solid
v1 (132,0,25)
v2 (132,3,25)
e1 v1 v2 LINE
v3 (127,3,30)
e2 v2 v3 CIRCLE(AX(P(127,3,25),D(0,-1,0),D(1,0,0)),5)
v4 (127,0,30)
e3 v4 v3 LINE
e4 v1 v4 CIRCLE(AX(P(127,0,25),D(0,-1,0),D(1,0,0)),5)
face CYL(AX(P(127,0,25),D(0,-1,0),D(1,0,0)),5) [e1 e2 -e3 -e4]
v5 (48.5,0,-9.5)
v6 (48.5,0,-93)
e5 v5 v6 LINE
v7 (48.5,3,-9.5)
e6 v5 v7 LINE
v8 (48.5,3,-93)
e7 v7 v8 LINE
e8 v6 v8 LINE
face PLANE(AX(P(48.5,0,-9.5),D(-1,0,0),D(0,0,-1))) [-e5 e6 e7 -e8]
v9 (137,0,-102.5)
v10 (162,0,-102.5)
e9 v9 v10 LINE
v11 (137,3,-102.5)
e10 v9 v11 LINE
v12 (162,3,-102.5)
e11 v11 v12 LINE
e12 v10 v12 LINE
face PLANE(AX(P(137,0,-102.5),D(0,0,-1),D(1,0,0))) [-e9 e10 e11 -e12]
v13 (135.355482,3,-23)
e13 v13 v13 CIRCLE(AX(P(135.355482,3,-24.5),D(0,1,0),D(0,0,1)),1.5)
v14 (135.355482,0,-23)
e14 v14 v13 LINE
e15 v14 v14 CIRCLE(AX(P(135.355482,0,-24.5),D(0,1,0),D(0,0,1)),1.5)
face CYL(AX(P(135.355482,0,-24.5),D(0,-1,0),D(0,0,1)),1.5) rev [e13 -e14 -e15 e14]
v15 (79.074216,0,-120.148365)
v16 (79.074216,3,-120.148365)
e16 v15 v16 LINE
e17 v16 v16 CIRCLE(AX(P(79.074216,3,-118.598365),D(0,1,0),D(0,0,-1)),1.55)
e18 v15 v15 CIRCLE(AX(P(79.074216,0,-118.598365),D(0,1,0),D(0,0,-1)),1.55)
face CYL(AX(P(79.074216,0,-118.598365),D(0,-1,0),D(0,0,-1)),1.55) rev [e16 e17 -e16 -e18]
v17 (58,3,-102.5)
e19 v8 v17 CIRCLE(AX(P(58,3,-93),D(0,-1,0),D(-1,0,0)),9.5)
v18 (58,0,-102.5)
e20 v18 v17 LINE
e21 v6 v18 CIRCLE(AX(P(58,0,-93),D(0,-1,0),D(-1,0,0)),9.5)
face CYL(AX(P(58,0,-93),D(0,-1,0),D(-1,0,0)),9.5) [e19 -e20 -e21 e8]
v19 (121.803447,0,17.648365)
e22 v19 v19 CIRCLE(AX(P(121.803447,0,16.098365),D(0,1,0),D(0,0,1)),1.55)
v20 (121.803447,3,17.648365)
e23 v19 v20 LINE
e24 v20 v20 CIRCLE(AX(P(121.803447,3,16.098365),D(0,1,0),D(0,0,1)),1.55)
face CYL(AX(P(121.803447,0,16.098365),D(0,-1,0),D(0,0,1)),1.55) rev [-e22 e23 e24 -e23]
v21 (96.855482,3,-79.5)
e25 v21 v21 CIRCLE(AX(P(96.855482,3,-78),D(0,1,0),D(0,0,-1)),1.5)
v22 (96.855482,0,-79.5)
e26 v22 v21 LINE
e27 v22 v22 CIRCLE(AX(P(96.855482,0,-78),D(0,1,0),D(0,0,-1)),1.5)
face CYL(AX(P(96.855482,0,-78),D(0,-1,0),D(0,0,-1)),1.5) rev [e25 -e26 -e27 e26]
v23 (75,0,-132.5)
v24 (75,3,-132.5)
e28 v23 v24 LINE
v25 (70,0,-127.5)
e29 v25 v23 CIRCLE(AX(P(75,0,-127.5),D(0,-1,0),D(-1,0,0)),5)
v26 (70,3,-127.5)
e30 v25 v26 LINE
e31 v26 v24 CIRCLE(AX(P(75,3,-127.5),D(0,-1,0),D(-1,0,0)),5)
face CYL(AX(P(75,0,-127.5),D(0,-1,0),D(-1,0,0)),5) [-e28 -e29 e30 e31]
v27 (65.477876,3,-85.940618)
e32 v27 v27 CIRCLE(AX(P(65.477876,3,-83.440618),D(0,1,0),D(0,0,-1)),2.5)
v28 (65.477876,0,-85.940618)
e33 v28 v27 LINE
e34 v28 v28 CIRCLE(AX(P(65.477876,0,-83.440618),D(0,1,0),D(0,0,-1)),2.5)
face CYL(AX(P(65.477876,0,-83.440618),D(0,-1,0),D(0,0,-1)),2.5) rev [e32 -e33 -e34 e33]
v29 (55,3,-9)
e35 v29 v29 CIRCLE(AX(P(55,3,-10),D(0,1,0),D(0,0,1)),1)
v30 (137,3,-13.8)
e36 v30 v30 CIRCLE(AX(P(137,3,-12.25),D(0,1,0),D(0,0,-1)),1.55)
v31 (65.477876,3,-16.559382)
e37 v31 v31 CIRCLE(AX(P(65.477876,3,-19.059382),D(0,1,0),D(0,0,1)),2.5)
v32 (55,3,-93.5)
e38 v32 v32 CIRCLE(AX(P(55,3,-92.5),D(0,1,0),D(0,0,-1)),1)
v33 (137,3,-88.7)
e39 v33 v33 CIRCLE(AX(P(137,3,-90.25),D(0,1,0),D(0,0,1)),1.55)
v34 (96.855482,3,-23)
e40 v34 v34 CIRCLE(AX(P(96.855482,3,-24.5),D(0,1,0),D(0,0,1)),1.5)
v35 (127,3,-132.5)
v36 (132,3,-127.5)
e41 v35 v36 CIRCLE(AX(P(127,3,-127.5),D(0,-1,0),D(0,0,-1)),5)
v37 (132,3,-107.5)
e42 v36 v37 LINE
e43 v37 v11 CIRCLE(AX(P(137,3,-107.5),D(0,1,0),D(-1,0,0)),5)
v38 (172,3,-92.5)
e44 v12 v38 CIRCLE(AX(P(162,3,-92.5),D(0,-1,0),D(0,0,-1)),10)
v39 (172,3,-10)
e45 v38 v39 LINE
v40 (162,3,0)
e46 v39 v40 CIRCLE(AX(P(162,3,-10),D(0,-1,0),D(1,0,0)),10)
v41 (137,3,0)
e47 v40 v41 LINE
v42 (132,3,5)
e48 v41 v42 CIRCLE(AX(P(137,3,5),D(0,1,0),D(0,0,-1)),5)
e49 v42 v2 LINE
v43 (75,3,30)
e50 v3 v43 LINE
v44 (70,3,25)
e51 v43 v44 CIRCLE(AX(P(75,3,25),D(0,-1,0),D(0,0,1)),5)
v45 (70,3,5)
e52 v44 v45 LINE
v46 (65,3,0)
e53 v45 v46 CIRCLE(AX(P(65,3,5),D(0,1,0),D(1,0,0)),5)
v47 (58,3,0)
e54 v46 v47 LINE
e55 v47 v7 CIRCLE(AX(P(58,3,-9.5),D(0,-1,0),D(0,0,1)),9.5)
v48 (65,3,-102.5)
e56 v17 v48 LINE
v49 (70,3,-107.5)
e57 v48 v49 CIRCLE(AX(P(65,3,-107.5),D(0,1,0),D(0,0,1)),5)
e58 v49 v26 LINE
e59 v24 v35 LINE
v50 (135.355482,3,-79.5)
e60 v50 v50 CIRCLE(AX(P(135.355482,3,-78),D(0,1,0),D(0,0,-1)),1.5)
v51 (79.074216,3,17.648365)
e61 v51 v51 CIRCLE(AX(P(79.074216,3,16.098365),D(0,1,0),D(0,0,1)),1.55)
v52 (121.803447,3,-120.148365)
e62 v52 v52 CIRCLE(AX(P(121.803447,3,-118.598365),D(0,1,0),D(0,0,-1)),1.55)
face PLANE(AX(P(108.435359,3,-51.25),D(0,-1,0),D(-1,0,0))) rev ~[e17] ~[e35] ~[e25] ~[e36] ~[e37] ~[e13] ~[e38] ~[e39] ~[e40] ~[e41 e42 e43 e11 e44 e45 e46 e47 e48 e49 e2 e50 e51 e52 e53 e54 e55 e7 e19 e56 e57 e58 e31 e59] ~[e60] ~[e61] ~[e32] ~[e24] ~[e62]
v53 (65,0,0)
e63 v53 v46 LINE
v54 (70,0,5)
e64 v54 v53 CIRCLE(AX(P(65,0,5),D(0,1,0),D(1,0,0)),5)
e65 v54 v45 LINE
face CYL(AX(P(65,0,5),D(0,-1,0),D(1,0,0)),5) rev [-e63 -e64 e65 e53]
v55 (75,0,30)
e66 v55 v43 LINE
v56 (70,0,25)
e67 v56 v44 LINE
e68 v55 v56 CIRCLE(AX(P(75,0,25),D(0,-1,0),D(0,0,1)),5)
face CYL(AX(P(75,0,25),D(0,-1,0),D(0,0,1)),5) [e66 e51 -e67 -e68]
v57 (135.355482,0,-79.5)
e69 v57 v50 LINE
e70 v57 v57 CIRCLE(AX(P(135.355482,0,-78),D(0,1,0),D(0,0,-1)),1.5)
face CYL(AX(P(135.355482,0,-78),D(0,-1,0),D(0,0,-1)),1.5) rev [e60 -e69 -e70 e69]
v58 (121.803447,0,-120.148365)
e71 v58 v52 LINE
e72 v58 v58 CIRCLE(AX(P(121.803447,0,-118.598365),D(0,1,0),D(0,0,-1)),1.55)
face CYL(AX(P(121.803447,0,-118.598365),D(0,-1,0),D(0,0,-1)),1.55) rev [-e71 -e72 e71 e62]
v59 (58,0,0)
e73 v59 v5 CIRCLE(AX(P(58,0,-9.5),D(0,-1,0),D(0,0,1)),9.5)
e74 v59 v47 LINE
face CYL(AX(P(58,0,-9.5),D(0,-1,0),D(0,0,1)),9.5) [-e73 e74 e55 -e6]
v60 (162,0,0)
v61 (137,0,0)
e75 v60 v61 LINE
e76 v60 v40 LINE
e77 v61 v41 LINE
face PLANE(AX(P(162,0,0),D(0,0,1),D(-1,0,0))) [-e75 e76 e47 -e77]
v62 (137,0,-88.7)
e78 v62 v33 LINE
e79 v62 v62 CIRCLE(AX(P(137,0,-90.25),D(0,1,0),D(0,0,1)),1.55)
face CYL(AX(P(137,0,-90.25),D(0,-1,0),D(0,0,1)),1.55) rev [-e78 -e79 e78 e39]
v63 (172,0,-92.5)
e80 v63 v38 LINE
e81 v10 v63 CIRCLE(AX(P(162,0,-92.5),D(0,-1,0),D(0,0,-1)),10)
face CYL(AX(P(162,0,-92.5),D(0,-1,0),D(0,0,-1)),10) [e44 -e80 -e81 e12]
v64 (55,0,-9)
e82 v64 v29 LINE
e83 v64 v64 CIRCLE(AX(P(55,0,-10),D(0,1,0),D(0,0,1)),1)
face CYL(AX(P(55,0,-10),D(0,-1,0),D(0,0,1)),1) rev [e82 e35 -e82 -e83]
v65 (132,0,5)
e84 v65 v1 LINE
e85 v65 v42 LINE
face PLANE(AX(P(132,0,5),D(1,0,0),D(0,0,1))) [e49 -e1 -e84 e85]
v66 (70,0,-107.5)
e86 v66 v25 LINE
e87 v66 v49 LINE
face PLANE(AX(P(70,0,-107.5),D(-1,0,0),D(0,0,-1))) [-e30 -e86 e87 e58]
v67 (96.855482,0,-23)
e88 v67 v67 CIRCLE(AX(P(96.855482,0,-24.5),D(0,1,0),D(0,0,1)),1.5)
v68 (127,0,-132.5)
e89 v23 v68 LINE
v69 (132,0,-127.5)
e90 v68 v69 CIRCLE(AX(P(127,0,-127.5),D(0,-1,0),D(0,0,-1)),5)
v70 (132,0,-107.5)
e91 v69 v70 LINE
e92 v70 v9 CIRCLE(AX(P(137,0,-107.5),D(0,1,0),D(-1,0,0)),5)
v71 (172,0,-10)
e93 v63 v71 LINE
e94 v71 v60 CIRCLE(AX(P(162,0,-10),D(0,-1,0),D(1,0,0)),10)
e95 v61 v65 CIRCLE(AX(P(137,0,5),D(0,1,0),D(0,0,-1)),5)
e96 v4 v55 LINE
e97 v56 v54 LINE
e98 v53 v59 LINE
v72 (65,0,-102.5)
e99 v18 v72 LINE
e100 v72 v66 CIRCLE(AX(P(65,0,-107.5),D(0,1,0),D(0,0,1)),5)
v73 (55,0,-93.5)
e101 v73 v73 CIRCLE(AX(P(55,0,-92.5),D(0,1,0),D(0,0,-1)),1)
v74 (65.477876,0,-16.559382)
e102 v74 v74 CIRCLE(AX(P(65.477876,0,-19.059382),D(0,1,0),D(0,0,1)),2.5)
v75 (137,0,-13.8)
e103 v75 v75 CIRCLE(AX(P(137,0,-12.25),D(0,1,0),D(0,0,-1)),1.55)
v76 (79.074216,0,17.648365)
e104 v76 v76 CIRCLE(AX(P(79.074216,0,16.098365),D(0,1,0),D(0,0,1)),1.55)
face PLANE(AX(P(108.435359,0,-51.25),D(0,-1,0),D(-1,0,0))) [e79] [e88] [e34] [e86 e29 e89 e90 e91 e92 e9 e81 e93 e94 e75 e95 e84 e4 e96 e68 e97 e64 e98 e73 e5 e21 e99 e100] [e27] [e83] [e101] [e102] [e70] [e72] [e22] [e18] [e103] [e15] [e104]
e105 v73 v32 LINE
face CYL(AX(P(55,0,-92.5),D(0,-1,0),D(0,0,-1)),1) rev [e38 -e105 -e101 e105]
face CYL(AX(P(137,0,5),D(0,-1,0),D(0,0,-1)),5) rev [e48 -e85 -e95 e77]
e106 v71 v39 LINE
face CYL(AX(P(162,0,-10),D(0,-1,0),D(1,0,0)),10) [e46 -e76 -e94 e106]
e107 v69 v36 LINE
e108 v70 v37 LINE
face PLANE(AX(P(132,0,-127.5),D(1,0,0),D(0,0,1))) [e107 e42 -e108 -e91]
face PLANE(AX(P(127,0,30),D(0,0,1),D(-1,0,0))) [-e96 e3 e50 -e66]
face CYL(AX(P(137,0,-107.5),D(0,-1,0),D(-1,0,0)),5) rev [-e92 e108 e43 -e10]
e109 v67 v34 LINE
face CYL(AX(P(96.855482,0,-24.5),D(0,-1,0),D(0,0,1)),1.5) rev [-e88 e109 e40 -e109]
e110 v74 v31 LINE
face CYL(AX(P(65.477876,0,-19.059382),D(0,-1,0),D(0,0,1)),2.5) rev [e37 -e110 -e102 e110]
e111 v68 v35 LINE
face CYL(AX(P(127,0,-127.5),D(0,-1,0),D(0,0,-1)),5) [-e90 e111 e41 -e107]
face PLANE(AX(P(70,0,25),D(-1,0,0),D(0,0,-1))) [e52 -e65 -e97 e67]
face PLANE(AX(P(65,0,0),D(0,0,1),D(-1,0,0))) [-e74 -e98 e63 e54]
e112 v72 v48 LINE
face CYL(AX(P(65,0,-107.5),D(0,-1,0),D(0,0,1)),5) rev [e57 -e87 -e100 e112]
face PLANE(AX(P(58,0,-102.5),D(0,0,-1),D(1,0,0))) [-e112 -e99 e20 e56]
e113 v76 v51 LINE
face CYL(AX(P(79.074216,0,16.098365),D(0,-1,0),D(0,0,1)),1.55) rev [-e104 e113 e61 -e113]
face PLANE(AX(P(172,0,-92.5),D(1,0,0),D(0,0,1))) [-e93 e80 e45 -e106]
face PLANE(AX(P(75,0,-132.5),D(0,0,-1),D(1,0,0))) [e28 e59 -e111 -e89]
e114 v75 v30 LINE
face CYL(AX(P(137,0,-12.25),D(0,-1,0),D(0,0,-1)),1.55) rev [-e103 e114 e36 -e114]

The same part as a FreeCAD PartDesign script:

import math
import FreeCAD as App
import Part
import Sketcher

V = App.Vector
Q = App.Units.Quantity

doc = App.newDocument("Part")
params = doc.addObject("Spreadsheet::Sheet", "Params")
for row, (alias, value) in enumerate([
    ("sketch1_diameter", "3 mm"),
    ("sketch1_diameter2", "2 mm"),
    ("sketch1_diameter3", "5 mm"),
    ("sketch1_radius", "5 mm"),
    ("sketch1_radius2", "10 mm"),
    ("pad1_length", "3 mm"),
], start=1):
    params.set(f"A{row}", alias)
    params.set(f"B{row}", "=" + value)
    params.setAlias(f"B{row}", alias)

body = doc.addObject("PartDesign::Body", "Body")

# Sketch on XZ plane
sketch1 = doc.addObject("Sketcher::SketchObject", "Sketch")
body.addObject(sketch1)
sketch1.AttachmentSupport = (doc.XZ_Plane, [""])
sketch1.MapMode = "FlatFace"
sketch1.addGeometry(Part.LineSegment(V(132, 25, 0), V(132, 5, 0)), False)
sketch1.addGeometry(Part.ArcOfCircle(Part.Circle(V(137, 5, 0), V(0, 0, 1), 5), math.radians(180), math.radians(270)), False)
sketch1.addGeometry(Part.LineSegment(V(137, 0, 0), V(162, 0, 0)), False)
sketch1.addGeometry(Part.ArcOfCircle(Part.Circle(V(162, -10, 0), V(0, 0, 1), 10), math.radians(0), math.radians(90)), False)
sketch1.addGeometry(Part.LineSegment(V(172, -10, 0), V(172, -92.5, 0)), False)
sketch1.addGeometry(Part.ArcOfCircle(Part.Circle(V(162, -92.5, 0), V(0, 0, 1), 10), math.radians(-90), math.radians(0)), False)
sketch1.addGeometry(Part.LineSegment(V(162, -102.5, 0), V(137, -102.5, 0)), False)
sketch1.addGeometry(Part.ArcOfCircle(Part.Circle(V(137, -107.5, 0), V(0, 0, 1), 5), math.radians(90), math.radians(180)), False)
sketch1.addGeometry(Part.LineSegment(V(132, -107.5, 0), V(132, -127.5, 0)), False)
sketch1.addGeometry(Part.ArcOfCircle(Part.Circle(V(127, -127.5, 0), V(0, 0, 1), 5), math.radians(-90), math.radians(0)), False)
sketch1.addGeometry(Part.LineSegment(V(127, -132.5, 0), V(75, -132.5, 0)), False)
sketch1.addGeometry(Part.ArcOfCircle(Part.Circle(V(75, -127.5, 0), V(0, 0, 1), 5), math.radians(180), math.radians(270)), False)
sketch1.addGeometry(Part.LineSegment(V(70, -127.5, 0), V(70, -107.5, 0)), False)
sketch1.addGeometry(Part.ArcOfCircle(Part.Circle(V(65, -107.5, 0), V(0, 0, 1), 5), math.radians(0), math.radians(90)), False)
sketch1.addGeometry(Part.LineSegment(V(65, -102.5, 0), V(58, -102.5, 0)), False)
sketch1.addGeometry(Part.ArcOfCircle(Part.Circle(V(58, -93, 0), V(0, 0, 1), 9.5), math.radians(-180), math.radians(-90)), False)
sketch1.addGeometry(Part.LineSegment(V(48.5, -93, 0), V(48.5, -9.5, 0)), False)
sketch1.addGeometry(Part.ArcOfCircle(Part.Circle(V(58, -9.5, 0), V(0, 0, 1), 9.5), math.radians(90), math.radians(180)), False)
sketch1.addGeometry(Part.LineSegment(V(58, 0, 0), V(65, 0, 0)), False)
sketch1.addGeometry(Part.ArcOfCircle(Part.Circle(V(65, 5, 0), V(0, 0, 1), 5), math.radians(-90), math.radians(0)), False)
sketch1.addGeometry(Part.LineSegment(V(70, 5, 0), V(70, 25, 0)), False)
sketch1.addGeometry(Part.ArcOfCircle(Part.Circle(V(75, 25, 0), V(0, 0, 1), 5), math.radians(90), math.radians(180)), False)
sketch1.addGeometry(Part.LineSegment(V(75, 30, 0), V(127, 30, 0)), False)
sketch1.addGeometry(Part.ArcOfCircle(Part.Circle(V(127, 25, 0), V(0, 0, 1), 5), math.radians(0), math.radians(90)), False)
sketch1.addGeometry(Part.Circle(V(121.8, 16.1, 0), V(0, 0, 1), 1.6), False)
sketch1.addGeometry(Part.Circle(V(137, -12.2, 0), V(0, 0, 1), 1.6), False)
sketch1.addGeometry(Part.Circle(V(135.4, -24.5, 0), V(0, 0, 1), 1.5), False)
sketch1.addGeometry(Part.Circle(V(96.9, -24.5, 0), V(0, 0, 1), 1.5), False)
sketch1.addGeometry(Part.Circle(V(79.1, 16.1, 0), V(0, 0, 1), 1.6), False)
sketch1.addGeometry(Part.Circle(V(55, -10, 0), V(0, 0, 1), 1), False)
sketch1.addGeometry(Part.Circle(V(65.5, -19.1, 0), V(0, 0, 1), 2.5), False)
sketch1.addGeometry(Part.Circle(V(135.4, -78, 0), V(0, 0, 1), 1.5), False)
sketch1.addGeometry(Part.Circle(V(96.9, -78, 0), V(0, 0, 1), 1.5), False)
sketch1.addGeometry(Part.Circle(V(137, -90.2, 0), V(0, 0, 1), 1.6), False)
sketch1.addGeometry(Part.Circle(V(121.8, -118.6, 0), V(0, 0, 1), 1.6), False)
sketch1.addGeometry(Part.Circle(V(65.5, -83.4, 0), V(0, 0, 1), 2.5), False)
sketch1.addGeometry(Part.Circle(V(79.1, -118.6, 0), V(0, 0, 1), 1.6), False)
sketch1.addGeometry(Part.Circle(V(55, -92.5, 0), V(0, 0, 1), 1), False)
sketch1.addConstraint(Sketcher.Constraint("Tangent", 0, 2, 1, 1))
sketch1.addConstraint(Sketcher.Constraint("Tangent", 1, 2, 2, 1))
sketch1.addConstraint(Sketcher.Constraint("Tangent", 2, 2, 3, 2))
sketch1.addConstraint(Sketcher.Constraint("Tangent", 3, 1, 4, 1))
sketch1.addConstraint(Sketcher.Constraint("Tangent", 4, 2, 5, 2))
sketch1.addConstraint(Sketcher.Constraint("Tangent", 5, 1, 6, 1))
sketch1.addConstraint(Sketcher.Constraint("Tangent", 6, 2, 7, 1))
sketch1.addConstraint(Sketcher.Constraint("Tangent", 7, 2, 8, 1))
sketch1.addConstraint(Sketcher.Constraint("Tangent", 8, 2, 9, 2))
sketch1.addConstraint(Sketcher.Constraint("Tangent", 9, 1, 10, 1))
sketch1.addConstraint(Sketcher.Constraint("Tangent", 10, 2, 11, 2))
sketch1.addConstraint(Sketcher.Constraint("Tangent", 11, 1, 12, 1))
sketch1.addConstraint(Sketcher.Constraint("Tangent", 12, 2, 13, 1))
sketch1.addConstraint(Sketcher.Constraint("Tangent", 13, 2, 14, 1))
sketch1.addConstraint(Sketcher.Constraint("Tangent", 14, 2, 15, 2))
sketch1.addConstraint(Sketcher.Constraint("Tangent", 15, 1, 16, 1))
sketch1.addConstraint(Sketcher.Constraint("Tangent", 16, 2, 17, 2))
sketch1.addConstraint(Sketcher.Constraint("Tangent", 17, 1, 18, 1))
sketch1.addConstraint(Sketcher.Constraint("Tangent", 18, 2, 19, 1))
sketch1.addConstraint(Sketcher.Constraint("Tangent", 19, 2, 20, 1))
sketch1.addConstraint(Sketcher.Constraint("Tangent", 20, 2, 21, 2))
sketch1.addConstraint(Sketcher.Constraint("Tangent", 21, 1, 22, 1))
sketch1.addConstraint(Sketcher.Constraint("Tangent", 22, 2, 23, 2))
sketch1.addConstraint(Sketcher.Constraint("Tangent", 23, 1, 0, 1))
sketch1.addConstraint(Sketcher.Constraint("Vertical", 0))
sketch1.addConstraint(Sketcher.Constraint("Horizontal", 2))
sketch1.addConstraint(Sketcher.Constraint("Vertical", 4))
sketch1.addConstraint(Sketcher.Constraint("Horizontal", 6))
sketch1.addConstraint(Sketcher.Constraint("Vertical", 8))
sketch1.addConstraint(Sketcher.Constraint("Horizontal", 10))
sketch1.addConstraint(Sketcher.Constraint("Vertical", 12))
sketch1.addConstraint(Sketcher.Constraint("Horizontal", 14))
sketch1.addConstraint(Sketcher.Constraint("Vertical", 16))
sketch1.addConstraint(Sketcher.Constraint("Horizontal", 18))
sketch1.addConstraint(Sketcher.Constraint("Vertical", 20))
sketch1.addConstraint(Sketcher.Constraint("Horizontal", 22))
sketch1.addConstraint(Sketcher.Constraint("Equal", 3, 5))
sketch1.addConstraint(Sketcher.Constraint("Equal", 1, 7))
sketch1.addConstraint(Sketcher.Constraint("Equal", 7, 9))
sketch1.addConstraint(Sketcher.Constraint("Equal", 9, 11))
sketch1.addConstraint(Sketcher.Constraint("Equal", 11, 13))
sketch1.addConstraint(Sketcher.Constraint("Equal", 15, 17))
sketch1.addConstraint(Sketcher.Constraint("Equal", 13, 19))
sketch1.addConstraint(Sketcher.Constraint("Equal", 19, 21))
sketch1.addConstraint(Sketcher.Constraint("Equal", 21, 23))
sketch1.addConstraint(Sketcher.Constraint("Equal", 24, 25))
sketch1.addConstraint(Sketcher.Constraint("Equal", 26, 27))
sketch1.addConstraint(Sketcher.Constraint("Equal", 25, 28))
sketch1.addConstraint(Sketcher.Constraint("Equal", 27, 31))
sketch1.addConstraint(Sketcher.Constraint("Equal", 31, 32))
sketch1.addConstraint(Sketcher.Constraint("Equal", 28, 33))
sketch1.addConstraint(Sketcher.Constraint("Equal", 33, 34))
sketch1.addConstraint(Sketcher.Constraint("Equal", 30, 35))
sketch1.addConstraint(Sketcher.Constraint("Equal", 34, 36))
sketch1.addConstraint(Sketcher.Constraint("Equal", 29, 37))
sketch1.addConstraint(Sketcher.Constraint("PointOnObject", 1, 2, -1))
sketch1.addConstraint(Sketcher.Constraint("PointOnObject", 17, 1, -1))
sketch1.addConstraint(Sketcher.Constraint("Horizontal", 7, 3, 13, 3))
sketch1.addConstraint(Sketcher.Constraint("Horizontal", 26, 3, 27, 3))
sketch1.addConstraint(Sketcher.Constraint("Horizontal", 24, 3, 28, 3))
sketch1.addConstraint(Sketcher.Constraint("Horizontal", 3, 3, 29, 3))
sketch1.addConstraint(Sketcher.Constraint("Horizontal", 31, 3, 32, 3))
sketch1.addConstraint(Sketcher.Constraint("Horizontal", 34, 3, 36, 3))
sketch1.addConstraint(Sketcher.Constraint("Horizontal", 5, 3, 37, 3))
sketch1.addConstraint(Sketcher.Constraint("Vertical", 1, 3, 7, 3))
sketch1.addConstraint(Sketcher.Constraint("Vertical", 13, 3, 19, 3))
sketch1.addConstraint(Sketcher.Constraint("Vertical", 7, 3, 25, 3))
sketch1.addConstraint(Sketcher.Constraint("Vertical", 26, 3, 31, 3))
sketch1.addConstraint(Sketcher.Constraint("Vertical", 27, 3, 32, 3))
sketch1.addConstraint(Sketcher.Constraint("Vertical", 25, 3, 33, 3))
sketch1.addConstraint(Sketcher.Constraint("Vertical", 24, 3, 34, 3))
sketch1.addConstraint(Sketcher.Constraint("Vertical", 30, 3, 35, 3))
sketch1.addConstraint(Sketcher.Constraint("Vertical", 28, 3, 36, 3))
sketch1.addConstraint(Sketcher.Constraint("Vertical", 29, 3, 37, 3))
sketch1.addConstraint(Sketcher.Constraint("Equal", 0, 8))
sketch1.addConstraint(Sketcher.Constraint("Diameter", 26, Q("3 mm")))
sketch1.addConstraint(Sketcher.Constraint("Diameter", 29, Q("2 mm")))
sketch1.addConstraint(Sketcher.Constraint("Diameter", 30, Q("5 mm")))
sketch1.addConstraint(Sketcher.Constraint("Radius", 1, Q("5 mm")))
sketch1.addConstraint(Sketcher.Constraint("Radius", 3, Q("10 mm")))
sketch1.addConstraint(Sketcher.Constraint("Diameter", 24, Q("3.1 mm")))
sketch1.addConstraint(Sketcher.Constraint("Radius", 15, Q("9.5 mm")))
sketch1.addConstraint(Sketcher.Constraint("DistanceX", 2, 1, 2, 2, Q("25 mm")))
sketch1.addConstraint(Sketcher.Constraint("DistanceX", 10, 2, 10, 1, Q("52 mm")))
sketch1.addConstraint(Sketcher.Constraint("DistanceX", 14, 2, 14, 1, Q("7 mm")))
sketch1.addConstraint(Sketcher.Constraint("DistanceY", 0, 2, 0, 1, Q("20 mm")))
sketch1.addConstraint(Sketcher.Constraint("DistanceY", 4, 2, 4, 1, Q("82.5 mm")))
sketch1.addConstraint(Sketcher.Constraint("DistanceX", -1, 1, 1, 3, Q("137 mm")))
sketch1.addConstraint(Sketcher.Constraint("DistanceX", -1, 1, 29, 3, Q("55 mm")))
sketch1.addConstraint(Sketcher.Constraint("DistanceY", 31, 3, -1, 1, Q("78 mm")))
sketch1.addConstraint(Sketcher.Constraint("DistanceY", 27, 3, 17, 3, Q("15 mm")))
sketch1.addConstraint(Sketcher.Constraint("DistanceX", 27, 3, 26, 3, Q("38.5 mm")))
sketch1.addConstraint(Sketcher.Constraint("DistanceY", 25, 3, -1, 1, Q("12.25 mm")))
sketch1.addConstraint(Sketcher.Constraint("DistanceY", 33, 3, -1, 1, Q("90.25 mm")))
sketch1.addConstraint(Sketcher.Constraint("DistanceX", 28, 3, 24, 3, Q("42.729231 mm")))
sketch1.addConstraint(Sketcher.Constraint("DistanceX", 30, 3, 28, 3, Q("13.59634 mm")))
sketch1.addConstraint(Sketcher.Constraint("DistanceX", -1, 1, 24, 3, Q("121.803447 mm")))
sketch1.addConstraint(Sketcher.Constraint("DistanceY", -1, 1, 24, 3, Q("16.098365 mm")))
sketch1.addConstraint(Sketcher.Constraint("DistanceX", -1, 1, 26, 3, Q("135.355482 mm")))
sketch1.addConstraint(Sketcher.Constraint("DistanceY", 30, 3, -1, 1, Q("19.059382 mm")))
sketch1.addConstraint(Sketcher.Constraint("DistanceY", 34, 3, -1, 1, Q("118.598365 mm")))
sketch1.addConstraint(Sketcher.Constraint("DistanceY", 35, 3, -1, 1, Q("83.440618 mm")))
sketch1.setExpression("Constraints[75]", "Params.sketch1_diameter")
sketch1.setExpression("Constraints[76]", "Params.sketch1_diameter2")
sketch1.setExpression("Constraints[77]", "Params.sketch1_diameter3")
sketch1.setExpression("Constraints[78]", "Params.sketch1_radius")
sketch1.setExpression("Constraints[79]", "Params.sketch1_radius2")
pad1 = doc.addObject("PartDesign::Pad", "Pad")
body.addObject(pad1)
pad1.Profile = sketch1
pad1.setExpression("Length", "Params.pad1_length")
pad1.Reversed = True

doc.recompute()
